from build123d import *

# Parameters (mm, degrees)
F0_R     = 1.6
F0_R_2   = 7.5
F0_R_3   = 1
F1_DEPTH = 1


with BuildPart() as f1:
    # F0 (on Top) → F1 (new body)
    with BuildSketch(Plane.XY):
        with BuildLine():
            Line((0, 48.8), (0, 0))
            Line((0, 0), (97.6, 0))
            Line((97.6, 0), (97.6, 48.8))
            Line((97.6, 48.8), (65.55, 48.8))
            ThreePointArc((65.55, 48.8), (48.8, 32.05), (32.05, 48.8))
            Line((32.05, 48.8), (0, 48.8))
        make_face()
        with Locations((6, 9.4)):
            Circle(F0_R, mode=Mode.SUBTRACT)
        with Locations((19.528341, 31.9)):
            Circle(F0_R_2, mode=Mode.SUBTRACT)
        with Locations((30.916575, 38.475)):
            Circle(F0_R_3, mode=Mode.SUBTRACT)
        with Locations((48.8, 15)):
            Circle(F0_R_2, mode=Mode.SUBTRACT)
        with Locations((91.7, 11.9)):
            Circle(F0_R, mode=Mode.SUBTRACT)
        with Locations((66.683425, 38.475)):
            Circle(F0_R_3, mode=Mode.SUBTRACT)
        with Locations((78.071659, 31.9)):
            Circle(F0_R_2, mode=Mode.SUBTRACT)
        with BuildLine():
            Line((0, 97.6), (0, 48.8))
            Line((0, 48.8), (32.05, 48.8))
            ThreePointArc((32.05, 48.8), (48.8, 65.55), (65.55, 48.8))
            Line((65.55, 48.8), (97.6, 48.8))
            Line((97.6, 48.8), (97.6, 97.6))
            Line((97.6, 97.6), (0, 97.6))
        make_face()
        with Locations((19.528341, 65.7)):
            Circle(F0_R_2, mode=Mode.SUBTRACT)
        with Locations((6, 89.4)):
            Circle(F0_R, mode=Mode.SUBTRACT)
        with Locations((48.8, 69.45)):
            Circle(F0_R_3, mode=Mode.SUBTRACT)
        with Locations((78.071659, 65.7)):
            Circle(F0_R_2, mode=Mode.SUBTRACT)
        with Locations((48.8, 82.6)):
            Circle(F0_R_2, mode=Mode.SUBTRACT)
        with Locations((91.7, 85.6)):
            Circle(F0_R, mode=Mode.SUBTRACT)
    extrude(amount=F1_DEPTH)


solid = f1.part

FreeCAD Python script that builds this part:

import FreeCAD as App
import Part
import Sketcher
from FreeCAD import Vector
Q = App.Units.Quantity

doc = App.newDocument("Part")
body = doc.addObject("PartDesign::Body", "Body")

# Sketch on XY plane
sketch1 = body.newObject("Sketcher::SketchObject", "Sketch")
sketch1.AttachmentSupport = (doc.getObject("XY_Plane"), [""])
sketch1.MapMode = "FlatFace"
sketch1.addGeometry([
    Part.LineSegment(Vector(0, 0, 0), Vector(97.6, 0, 0)),  # 0
    Part.LineSegment(Vector(97.6, 0, 0), Vector(97.6, 97.6, 0)),  # 1
    Part.LineSegment(Vector(97.6, 97.6, 0), Vector(0, 97.6, 0)),  # 2
    Part.LineSegment(Vector(0, 97.6, 0), Vector(0, 0, 0)),  # 3
    Part.Circle(Vector(6, 9.4, 0), Vector(0, 0, 1), 1.6),  # 4
    Part.Circle(Vector(48.8, 15, 0), Vector(0, 0, 1), 7.5),  # 5
    Part.Circle(Vector(19.5, 31.9, 0), Vector(0, 0, 1), 7.5),  # 6
    Part.Circle(Vector(30.9, 38.5, 0), Vector(0, 0, 1), 1),  # 7
    Part.Circle(Vector(48.8, 48.8, 0), Vector(0, 0, 1), 16.8),  # 8
    Part.Circle(Vector(91.7, 11.9, 0), Vector(0, 0, 1), 1.6),  # 9
    Part.Circle(Vector(66.7, 38.5, 0), Vector(0, 0, 1), 1),  # 10
    Part.Circle(Vector(78.1, 31.9, 0), Vector(0, 0, 1), 7.5),  # 11
    Part.Circle(Vector(19.5, 65.7, 0), Vector(0, 0, 1), 7.5),  # 12
    Part.Circle(Vector(48.8, 69.5, 0), Vector(0, 0, 1), 1),  # 13
    Part.Circle(Vector(6, 89.4, 0), Vector(0, 0, 1), 1.6),  # 14
    Part.Circle(Vector(48.8, 82.6, 0), Vector(0, 0, 1), 7.5),  # 15
    Part.Circle(Vector(78.1, 65.7, 0), Vector(0, 0, 1), 7.5),  # 16
    Part.Circle(Vector(91.7, 85.6, 0), Vector(0, 0, 1), 1.6),  # 17
], False)
sketch1.addConstraint([
    Sketcher.Constraint("Coincident", 0, 2, 1, 1),
    Sketcher.Constraint("Coincident", 1, 2, 2, 1),
    Sketcher.Constraint("Coincident", 2, 2, 3, 1),
    Sketcher.Constraint("Coincident", 3, 2, 0, 1),
    Sketcher.Constraint("Horizontal", 0),
    Sketcher.Constraint("Vertical", 1),
    Sketcher.Constraint("Horizontal", 2),
    Sketcher.Constraint("Vertical", 3),
    Sketcher.Constraint("Coincident", 3, 2, -1, 1),
    Sketcher.Constraint("Equal", 5, 6),
    Sketcher.Constraint("Equal", 4, 9),
    Sketcher.Constraint("Equal", 7, 10),
    Sketcher.Constraint("Equal", 6, 11),
    Sketcher.Constraint("Equal", 11, 12),
    Sketcher.Constraint("Equal", 10, 13),
    Sketcher.Constraint("Equal", 9, 14),
    Sketcher.Constraint("Equal", 12, 15),
    Sketcher.Constraint("Equal", 15, 16),
    Sketcher.Constraint("Equal", 14, 17),
    Sketcher.Constraint("Horizontal", 7, 3, 10, 3),
    Sketcher.Constraint("Horizontal", 6, 3, 11, 3),
    Sketcher.Constraint("Horizontal", 12, 3, 16, 3),
    Sketcher.Constraint("Vertical", 5, 3, 8, 3),
    Sketcher.Constraint("Vertical", 6, 3, 12, 3),
    Sketcher.Constraint("Vertical", 8, 3, 13, 3),
    Sketcher.Constraint("Vertical", 4, 3, 14, 3),
    Sketcher.Constraint("Vertical", 13, 3, 15, 3),
    Sketcher.Constraint("Vertical", 11, 3, 16, 3),
    Sketcher.Constraint("Vertical", 9, 3, 17, 3),
    Sketcher.Constraint("Equal", 2, 1),
    Sketcher.Constraint("Diameter", 5, Q("15 mm")),
    Sketcher.Constraint("Diameter", 7, Q("2 mm")),
    Sketcher.Constraint("Diameter", 4, Q("3.2 mm")),
    Sketcher.Constraint("Diameter", 8, Q("33.5 mm")),
    Sketcher.Constraint("DistanceX", 0, 1, 0, 2, Q("97.6 mm")),
    Sketcher.Constraint("DistanceX", -1, 1, 4, 3, Q("6 mm")),
    Sketcher.Constraint("DistanceY", -1, 1, 5, 3, Q("15 mm")),
    Sketcher.Constraint("DistanceY", 9, 3, 6, 3, Q("20 mm")),
    Sketcher.Constraint("DistanceY", 15, 3, 17, 3, Q("3 mm")),
    Sketcher.Constraint("DistanceY", 17, 3, 1, 2, Q("12 mm")),
    Sketcher.Constraint("DistanceY", -1, 1, 4, 3, Q("9.4 mm")),
    Sketcher.Constraint("DistanceX", -1, 1, 5, 3, Q("48.8 mm")),
    Sketcher.Constraint("DistanceY", -1, 1, 6, 3, Q("31.9 mm")),
    Sketcher.Constraint("DistanceY", -1, 1, 8, 3, Q("48.8 mm")),
    Sketcher.Constraint("DistanceX", -1, 1, 9, 3, Q("91.7 mm")),
    Sketcher.Constraint("DistanceY", -1, 1, 12, 3, Q("65.7 mm")),
    Sketcher.Constraint("DistanceY", -1, 1, 14, 3, Q("89.4 mm")),
    Sketcher.Constraint("DistanceY", -1, 1, 13, 3, Q("69.45 mm")),
    Sketcher.Constraint("DistanceY", -1, 1, 7, 3, Q("38.475 mm")),
    Sketcher.Constraint("DistanceX", -1, 1, 6, 3, Q("19.528341 mm")),
    Sketcher.Constraint("DistanceX", -1, 1, 11, 3, Q("78.071659 mm")),
    Sketcher.Constraint("DistanceX", 7, 3, 10, 3, Q("35.76685 mm")),
    Sketcher.Constraint("DistanceX", -1, 1, 7, 3, Q("30.916575 mm")),
])
pad1 = body.newObject("PartDesign::Pad", "Pad")
pad1.Profile = sketch1
pad1.Length = 1

doc.recompute()
